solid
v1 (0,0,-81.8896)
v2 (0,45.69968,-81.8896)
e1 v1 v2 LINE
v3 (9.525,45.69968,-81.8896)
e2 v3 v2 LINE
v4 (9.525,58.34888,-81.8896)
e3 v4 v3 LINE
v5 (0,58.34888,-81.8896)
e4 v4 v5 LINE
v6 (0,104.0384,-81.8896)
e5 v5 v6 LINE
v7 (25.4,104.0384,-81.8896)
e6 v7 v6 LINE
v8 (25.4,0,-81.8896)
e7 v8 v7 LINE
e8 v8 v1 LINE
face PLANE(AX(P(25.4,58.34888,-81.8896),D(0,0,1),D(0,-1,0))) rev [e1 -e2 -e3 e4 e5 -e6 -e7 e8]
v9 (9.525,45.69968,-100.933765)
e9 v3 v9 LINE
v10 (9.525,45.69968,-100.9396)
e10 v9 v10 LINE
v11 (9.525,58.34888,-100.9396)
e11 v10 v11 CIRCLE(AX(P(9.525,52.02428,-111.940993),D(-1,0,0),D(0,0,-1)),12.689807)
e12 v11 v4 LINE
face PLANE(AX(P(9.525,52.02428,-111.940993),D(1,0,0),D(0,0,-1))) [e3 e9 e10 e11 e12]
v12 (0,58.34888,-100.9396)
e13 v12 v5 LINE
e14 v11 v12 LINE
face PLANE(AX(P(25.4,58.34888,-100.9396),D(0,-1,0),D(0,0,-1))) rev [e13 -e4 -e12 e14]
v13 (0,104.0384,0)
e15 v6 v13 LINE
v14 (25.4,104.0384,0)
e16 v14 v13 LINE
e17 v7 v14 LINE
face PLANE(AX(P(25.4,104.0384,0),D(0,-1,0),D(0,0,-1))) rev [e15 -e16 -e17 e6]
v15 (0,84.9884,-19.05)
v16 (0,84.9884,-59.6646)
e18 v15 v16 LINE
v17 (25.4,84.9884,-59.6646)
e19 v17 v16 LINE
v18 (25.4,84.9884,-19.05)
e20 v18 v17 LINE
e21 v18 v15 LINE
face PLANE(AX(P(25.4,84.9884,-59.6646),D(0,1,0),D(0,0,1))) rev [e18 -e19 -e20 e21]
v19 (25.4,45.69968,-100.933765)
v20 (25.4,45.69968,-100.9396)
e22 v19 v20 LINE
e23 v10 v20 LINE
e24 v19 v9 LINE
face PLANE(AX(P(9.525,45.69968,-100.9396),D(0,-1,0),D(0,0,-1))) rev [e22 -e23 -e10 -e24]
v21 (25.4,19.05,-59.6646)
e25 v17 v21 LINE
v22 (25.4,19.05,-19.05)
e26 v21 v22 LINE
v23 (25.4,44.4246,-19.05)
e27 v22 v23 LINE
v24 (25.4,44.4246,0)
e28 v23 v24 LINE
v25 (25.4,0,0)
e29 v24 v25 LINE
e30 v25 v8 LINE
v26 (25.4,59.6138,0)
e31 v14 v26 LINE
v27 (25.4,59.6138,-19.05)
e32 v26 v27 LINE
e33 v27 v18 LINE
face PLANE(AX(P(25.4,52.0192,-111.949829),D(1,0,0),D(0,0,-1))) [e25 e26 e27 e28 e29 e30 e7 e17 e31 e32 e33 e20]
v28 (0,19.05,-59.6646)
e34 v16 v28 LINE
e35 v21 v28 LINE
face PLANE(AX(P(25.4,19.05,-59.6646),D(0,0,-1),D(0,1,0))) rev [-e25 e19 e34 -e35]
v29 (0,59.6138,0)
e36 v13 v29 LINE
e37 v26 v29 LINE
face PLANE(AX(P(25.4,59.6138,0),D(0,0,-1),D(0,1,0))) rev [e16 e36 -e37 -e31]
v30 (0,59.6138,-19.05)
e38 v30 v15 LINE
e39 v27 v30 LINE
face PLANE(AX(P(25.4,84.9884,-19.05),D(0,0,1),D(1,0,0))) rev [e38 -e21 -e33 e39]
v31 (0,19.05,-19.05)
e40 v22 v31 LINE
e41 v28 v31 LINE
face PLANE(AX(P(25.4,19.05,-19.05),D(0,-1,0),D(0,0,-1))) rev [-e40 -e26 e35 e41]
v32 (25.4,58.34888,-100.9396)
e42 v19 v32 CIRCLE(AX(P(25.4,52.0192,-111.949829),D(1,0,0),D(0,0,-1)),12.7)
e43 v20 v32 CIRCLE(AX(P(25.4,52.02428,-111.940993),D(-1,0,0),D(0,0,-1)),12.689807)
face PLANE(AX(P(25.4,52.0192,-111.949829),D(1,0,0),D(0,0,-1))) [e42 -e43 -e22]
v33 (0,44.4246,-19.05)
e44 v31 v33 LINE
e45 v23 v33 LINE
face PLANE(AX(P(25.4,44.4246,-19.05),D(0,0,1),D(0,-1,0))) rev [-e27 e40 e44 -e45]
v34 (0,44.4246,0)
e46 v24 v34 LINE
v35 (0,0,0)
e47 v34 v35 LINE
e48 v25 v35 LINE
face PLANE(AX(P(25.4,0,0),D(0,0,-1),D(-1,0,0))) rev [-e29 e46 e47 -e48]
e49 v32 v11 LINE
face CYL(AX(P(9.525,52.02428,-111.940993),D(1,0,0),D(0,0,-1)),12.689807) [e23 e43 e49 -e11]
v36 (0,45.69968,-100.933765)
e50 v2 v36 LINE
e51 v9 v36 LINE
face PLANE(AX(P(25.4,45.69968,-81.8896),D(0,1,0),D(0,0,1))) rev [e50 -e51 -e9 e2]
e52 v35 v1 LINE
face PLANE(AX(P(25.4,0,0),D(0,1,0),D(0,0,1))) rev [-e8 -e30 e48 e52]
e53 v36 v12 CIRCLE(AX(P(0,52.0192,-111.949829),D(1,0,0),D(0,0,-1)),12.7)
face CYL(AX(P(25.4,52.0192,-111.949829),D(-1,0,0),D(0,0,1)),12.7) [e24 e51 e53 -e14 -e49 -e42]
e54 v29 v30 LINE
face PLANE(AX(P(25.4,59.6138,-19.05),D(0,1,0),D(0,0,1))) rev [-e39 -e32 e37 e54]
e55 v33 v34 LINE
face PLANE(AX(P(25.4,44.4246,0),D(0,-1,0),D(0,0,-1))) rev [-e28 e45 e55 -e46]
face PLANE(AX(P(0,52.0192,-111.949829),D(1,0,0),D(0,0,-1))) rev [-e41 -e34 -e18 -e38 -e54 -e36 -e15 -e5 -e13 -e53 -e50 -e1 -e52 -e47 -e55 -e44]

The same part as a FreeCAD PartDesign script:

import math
import FreeCAD as App
import Part
import Sketcher
from FreeCAD import Vector
Q = App.Units.Quantity

doc = App.newDocument("Part")
params = doc.addObject("Spreadsheet::Sheet", "Params")
for row, (alias, value) in enumerate([
    ("sketch1_radius", "0.5 in"),
    ("sketch1_height", "0.75 in"),
    ("sketch1_width", "1.749 in"),
    ("sketch1_width2", "0.999 in"),
    ("sketch1_width3", "2.596 in"),
    ("pad1_length", "1 in"),
    ("sketch2_height", "0.75 in"),
    ("sketch2_width", "0.498 in"),
    ("pocket1_length", "0.625 in"),
], start=1):
    params.set(f"A{row}", alias)
    params.set(f"B{row}", "=" + value)
    params.setAlias(f"B{row}", alias)

body = doc.addObject("PartDesign::Body", "Body")

# Sketch on YZ plane
sketch1 = body.newObject("Sketcher::SketchObject", "Sketch")
sketch1.AttachmentSupport = (doc.getObject("YZ_Plane"), [""])
sketch1.MapMode = "FlatFace"
sketch1.addGeometry(Part.LineSegment(Vector(44.4246, 0, 0), Vector(0, 0, 0)), False)
sketch1.addGeometry(Part.LineSegment(Vector(0, 0, 0), Vector(0, -81.8896, 0)), False)
sketch1.addGeometry(Part.LineSegment(Vector(0, -81.8896, 0), Vector(45.69968, -81.8896, 0)), False)
sketch1.addGeometry(Part.LineSegment(Vector(45.69968, -81.8896, 0), Vector(45.69968, -100.933765, 0)), False)
sketch1.addGeometry(Part.ArcOfCircle(Part.Circle(Vector(52.0192, -111.949829, 0), Vector(0, 0, 1), 12.7), math.radians(119.841344), math.radians(420.105799)), False)
sketch1.addGeometry(Part.LineSegment(Vector(58.34888, -100.9396, 0), Vector(58.34888, -81.8896, 0)), False)
sketch1.addGeometry(Part.LineSegment(Vector(58.34888, -81.8896, 0), Vector(104.0384, -81.8896, 0)), False)
sketch1.addGeometry(Part.LineSegment(Vector(104.0384, -81.8896, 0), Vector(104.0384, 0, 0)), False)
sketch1.addGeometry(Part.LineSegment(Vector(104.0384, 0, 0), Vector(59.6138, 0, 0)), False)
sketch1.addGeometry(Part.LineSegment(Vector(59.6138, 0, 0), Vector(59.6138, -19.05, 0)), False)
sketch1.addGeometry(Part.LineSegment(Vector(59.6138, -19.05, 0), Vector(84.9884, -19.05, 0)), False)
sketch1.addGeometry(Part.LineSegment(Vector(84.9884, -19.05, 0), Vector(84.9884, -59.6646, 0)), False)
sketch1.addGeometry(Part.LineSegment(Vector(84.9884, -59.6646, 0), Vector(19.05, -59.6646, 0)), False)
sketch1.addGeometry(Part.LineSegment(Vector(19.05, -59.6646, 0), Vector(19.05, -19.05, 0)), False)
sketch1.addGeometry(Part.LineSegment(Vector(19.05, -19.05, 0), Vector(44.4246, -19.05, 0)), False)
sketch1.addGeometry(Part.LineSegment(Vector(44.4246, -19.05, 0), Vector(44.4246, 0, 0)), False)
sketch1.addConstraint(Sketcher.Constraint("Coincident", 0, 2, 1, 1))
sketch1.addConstraint(Sketcher.Constraint("Coincident", 1, 2, 2, 1))
sketch1.addConstraint(Sketcher.Constraint("Coincident", 2, 2, 3, 1))
sketch1.addConstraint(Sketcher.Constraint("Coincident", 3, 2, 4, 1))
sketch1.addConstraint(Sketcher.Constraint("Coincident", 4, 2, 5, 1))
sketch1.addConstraint(Sketcher.Constraint("Coincident", 5, 2, 6, 1))
sketch1.addConstraint(Sketcher.Constraint("Coincident", 6, 2, 7, 1))
sketch1.addConstraint(Sketcher.Constraint("Coincident", 7, 2, 8, 1))
sketch1.addConstraint(Sketcher.Constraint("Coincident", 8, 2, 9, 1))
sketch1.addConstraint(Sketcher.Constraint("Coincident", 9, 2, 10, 1))
sketch1.addConstraint(Sketcher.Constraint("Coincident", 10, 2, 11, 1))
sketch1.addConstraint(Sketcher.Constraint("Coincident", 11, 2, 12, 1))
sketch1.addConstraint(Sketcher.Constraint("Coincident", 12, 2, 13, 1))
sketch1.addConstraint(Sketcher.Constraint("Coincident", 13, 2, 14, 1))
sketch1.addConstraint(Sketcher.Constraint("Coincident", 14, 2, 15, 1))
sketch1.addConstraint(Sketcher.Constraint("Coincident", 15, 2, 0, 1))
sketch1.addConstraint(Sketcher.Constraint("Horizontal", 0))
sketch1.addConstraint(Sketcher.Constraint("Vertical", 1))
sketch1.addConstraint(Sketcher.Constraint("Horizontal", 2))
sketch1.addConstraint(Sketcher.Constraint("Vertical", 3))
sketch1.addConstraint(Sketcher.Constraint("Vertical", 5))
sketch1.addConstraint(Sketcher.Constraint("Horizontal", 6))
sketch1.addConstraint(Sketcher.Constraint("Vertical", 7))
sketch1.addConstraint(Sketcher.Constraint("Horizontal", 8))
sketch1.addConstraint(Sketcher.Constraint("Vertical", 9))
sketch1.addConstraint(Sketcher.Constraint("Horizontal", 10))
sketch1.addConstraint(Sketcher.Constraint("Vertical", 11))
sketch1.addConstraint(Sketcher.Constraint("Horizontal", 12))
sketch1.addConstraint(Sketcher.Constraint("Vertical", 13))
sketch1.addConstraint(Sketcher.Constraint("Horizontal", 14))
sketch1.addConstraint(Sketcher.Constraint("Vertical", 15))
sketch1.addConstraint(Sketcher.Constraint("Coincident", 0, 2, -1, 1))
sketch1.addConstraint(Sketcher.Constraint("PointOnObject", 7, 2, -1))
sketch1.addConstraint(Sketcher.Constraint("Horizontal", 2, 2, 5, 2))
sketch1.addConstraint(Sketcher.Constraint("Horizontal", 10, 2, 13, 2))
sketch1.addConstraint(Sketcher.Constraint("Equal", 0, 8))
sketch1.addConstraint(Sketcher.Constraint("Equal", 10, 14))
sketch1.addConstraint(Sketcher.Constraint("Equal", 5, 9))
sketch1.addConstraint(Sketcher.Constraint("Radius", 4, Q("0.5 in")))
sketch1.addConstraint(Sketcher.Constraint("DistanceY", 5, 1, 5, 2, Q("0.75 in")))
sketch1.addConstraint(Sketcher.Constraint("DistanceX", 0, 2, 0, 1, Q("1.749 in")))
sketch1.addConstraint(Sketcher.Constraint("DistanceX", 10, 1, 10, 2, Q("0.999 in")))
sketch1.addConstraint(Sketcher.Constraint("DistanceX", 12, 2, 12, 1, Q("2.596 in")))
sketch1.addConstraint(Sketcher.Constraint("DistanceY", 1, 2, 1, 1, Q("3.224 in")))
sketch1.addConstraint(Sketcher.Constraint("DistanceY", 11, 2, 11, 1, Q("1.599 in")))
sketch1.addConstraint(Sketcher.Constraint("DistanceX", 2, 1, 2, 2, Q("1.7992 in")))
sketch1.addConstraint(Sketcher.Constraint("DistanceX", 6, 1, 6, 2, Q("1.7988 in")))
sketch1.addConstraint(Sketcher.Constraint("DistanceX", -1, 1, 4, 3, Q("2.048 in")))
sketch1.setExpression("Constraints[38]", "Params.sketch1_radius")
sketch1.setExpression("Constraints[39]", "Params.sketch1_height")
sketch1.setExpression("Constraints[40]", "Params.sketch1_width")
sketch1.setExpression("Constraints[41]", "Params.sketch1_width2")
sketch1.setExpression("Constraints[42]", "Params.sketch1_width3")
pad1 = body.newObject("PartDesign::Pad", "Pad")
pad1.Profile = sketch1
pad1.setExpression("Length", "Params.pad1_length")

# Sketch on YZ plane
sketch2 = body.newObject("Sketcher::SketchObject", "Sketch001")
sketch2.AttachmentSupport = (doc.getObject("YZ_Plane"), [""])
sketch2.MapMode = "FlatFace"
sketch2.AttachmentOffset = App.Placement(Vector(0, 0, 1 * 25.4), App.Rotation())
sketch2.addGeometry(Part.LineSegment(Vector(58.34888, -81.8896, 0), Vector(45.69968, -81.8896, 0)), False)
sketch2.addGeometry(Part.LineSegment(Vector(45.69968, -81.8896, 0), Vector(45.69968, -100.9396, 0)), False)
sketch2.addGeometry(Part.ArcOfCircle(Part.Circle(Vector(52.02428, -111.940993, 0), Vector(0, 0, 1), 12.689807), math.radians(60.105799), math.radians(119.894201)), False)
sketch2.addGeometry(Part.LineSegment(Vector(58.34888, -100.9396, 0), Vector(58.34888, -81.8896, 0)), False)
sketch2.addConstraint(Sketcher.Constraint("Coincident", 0, 2, 1, 1))
sketch2.addConstraint(Sketcher.Constraint("Coincident", 1, 2, 2, 2))
sketch2.addConstraint(Sketcher.Constraint("Coincident", 2, 1, 3, 1))
sketch2.addConstraint(Sketcher.Constraint("Coincident", 3, 2, 0, 1))
sketch2.addConstraint(Sketcher.Constraint("Horizontal", 0))
sketch2.addConstraint(Sketcher.Constraint("Vertical", 1))
sketch2.addConstraint(Sketcher.Constraint("Vertical", 3))
sketch2.addConstraint(Sketcher.Constraint("Horizontal", 1, 2, 2, 1))
sketch2.addConstraint(Sketcher.Constraint("DistanceY", 1, 2, 1, 1, Q("0.75 in")))
sketch2.addConstraint(Sketcher.Constraint("DistanceX", 0, 2, 0, 1, Q("0.498 in")))
sketch2.addConstraint(Sketcher.Constraint("DistanceY", 0, 2, -1, 1, Q("3.224 in")))
sketch2.addConstraint(Sketcher.Constraint("DistanceX", -1, 1, 2, 3, Q("2.0482 in")))
sketch2.addConstraint(Sketcher.Constraint("Radius", 2, Q("12.689807 mm")))
sketch2.setExpression("Constraints[8]", "Params.sketch2_height")
sketch2.setExpression("Constraints[9]", "Params.sketch2_width")
pocket1 = body.newObject("PartDesign::Pocket", "Pocket")
pocket1.Profile = sketch2
pocket1.setExpression("Length", "Params.pocket1_length")

doc.recompute()
